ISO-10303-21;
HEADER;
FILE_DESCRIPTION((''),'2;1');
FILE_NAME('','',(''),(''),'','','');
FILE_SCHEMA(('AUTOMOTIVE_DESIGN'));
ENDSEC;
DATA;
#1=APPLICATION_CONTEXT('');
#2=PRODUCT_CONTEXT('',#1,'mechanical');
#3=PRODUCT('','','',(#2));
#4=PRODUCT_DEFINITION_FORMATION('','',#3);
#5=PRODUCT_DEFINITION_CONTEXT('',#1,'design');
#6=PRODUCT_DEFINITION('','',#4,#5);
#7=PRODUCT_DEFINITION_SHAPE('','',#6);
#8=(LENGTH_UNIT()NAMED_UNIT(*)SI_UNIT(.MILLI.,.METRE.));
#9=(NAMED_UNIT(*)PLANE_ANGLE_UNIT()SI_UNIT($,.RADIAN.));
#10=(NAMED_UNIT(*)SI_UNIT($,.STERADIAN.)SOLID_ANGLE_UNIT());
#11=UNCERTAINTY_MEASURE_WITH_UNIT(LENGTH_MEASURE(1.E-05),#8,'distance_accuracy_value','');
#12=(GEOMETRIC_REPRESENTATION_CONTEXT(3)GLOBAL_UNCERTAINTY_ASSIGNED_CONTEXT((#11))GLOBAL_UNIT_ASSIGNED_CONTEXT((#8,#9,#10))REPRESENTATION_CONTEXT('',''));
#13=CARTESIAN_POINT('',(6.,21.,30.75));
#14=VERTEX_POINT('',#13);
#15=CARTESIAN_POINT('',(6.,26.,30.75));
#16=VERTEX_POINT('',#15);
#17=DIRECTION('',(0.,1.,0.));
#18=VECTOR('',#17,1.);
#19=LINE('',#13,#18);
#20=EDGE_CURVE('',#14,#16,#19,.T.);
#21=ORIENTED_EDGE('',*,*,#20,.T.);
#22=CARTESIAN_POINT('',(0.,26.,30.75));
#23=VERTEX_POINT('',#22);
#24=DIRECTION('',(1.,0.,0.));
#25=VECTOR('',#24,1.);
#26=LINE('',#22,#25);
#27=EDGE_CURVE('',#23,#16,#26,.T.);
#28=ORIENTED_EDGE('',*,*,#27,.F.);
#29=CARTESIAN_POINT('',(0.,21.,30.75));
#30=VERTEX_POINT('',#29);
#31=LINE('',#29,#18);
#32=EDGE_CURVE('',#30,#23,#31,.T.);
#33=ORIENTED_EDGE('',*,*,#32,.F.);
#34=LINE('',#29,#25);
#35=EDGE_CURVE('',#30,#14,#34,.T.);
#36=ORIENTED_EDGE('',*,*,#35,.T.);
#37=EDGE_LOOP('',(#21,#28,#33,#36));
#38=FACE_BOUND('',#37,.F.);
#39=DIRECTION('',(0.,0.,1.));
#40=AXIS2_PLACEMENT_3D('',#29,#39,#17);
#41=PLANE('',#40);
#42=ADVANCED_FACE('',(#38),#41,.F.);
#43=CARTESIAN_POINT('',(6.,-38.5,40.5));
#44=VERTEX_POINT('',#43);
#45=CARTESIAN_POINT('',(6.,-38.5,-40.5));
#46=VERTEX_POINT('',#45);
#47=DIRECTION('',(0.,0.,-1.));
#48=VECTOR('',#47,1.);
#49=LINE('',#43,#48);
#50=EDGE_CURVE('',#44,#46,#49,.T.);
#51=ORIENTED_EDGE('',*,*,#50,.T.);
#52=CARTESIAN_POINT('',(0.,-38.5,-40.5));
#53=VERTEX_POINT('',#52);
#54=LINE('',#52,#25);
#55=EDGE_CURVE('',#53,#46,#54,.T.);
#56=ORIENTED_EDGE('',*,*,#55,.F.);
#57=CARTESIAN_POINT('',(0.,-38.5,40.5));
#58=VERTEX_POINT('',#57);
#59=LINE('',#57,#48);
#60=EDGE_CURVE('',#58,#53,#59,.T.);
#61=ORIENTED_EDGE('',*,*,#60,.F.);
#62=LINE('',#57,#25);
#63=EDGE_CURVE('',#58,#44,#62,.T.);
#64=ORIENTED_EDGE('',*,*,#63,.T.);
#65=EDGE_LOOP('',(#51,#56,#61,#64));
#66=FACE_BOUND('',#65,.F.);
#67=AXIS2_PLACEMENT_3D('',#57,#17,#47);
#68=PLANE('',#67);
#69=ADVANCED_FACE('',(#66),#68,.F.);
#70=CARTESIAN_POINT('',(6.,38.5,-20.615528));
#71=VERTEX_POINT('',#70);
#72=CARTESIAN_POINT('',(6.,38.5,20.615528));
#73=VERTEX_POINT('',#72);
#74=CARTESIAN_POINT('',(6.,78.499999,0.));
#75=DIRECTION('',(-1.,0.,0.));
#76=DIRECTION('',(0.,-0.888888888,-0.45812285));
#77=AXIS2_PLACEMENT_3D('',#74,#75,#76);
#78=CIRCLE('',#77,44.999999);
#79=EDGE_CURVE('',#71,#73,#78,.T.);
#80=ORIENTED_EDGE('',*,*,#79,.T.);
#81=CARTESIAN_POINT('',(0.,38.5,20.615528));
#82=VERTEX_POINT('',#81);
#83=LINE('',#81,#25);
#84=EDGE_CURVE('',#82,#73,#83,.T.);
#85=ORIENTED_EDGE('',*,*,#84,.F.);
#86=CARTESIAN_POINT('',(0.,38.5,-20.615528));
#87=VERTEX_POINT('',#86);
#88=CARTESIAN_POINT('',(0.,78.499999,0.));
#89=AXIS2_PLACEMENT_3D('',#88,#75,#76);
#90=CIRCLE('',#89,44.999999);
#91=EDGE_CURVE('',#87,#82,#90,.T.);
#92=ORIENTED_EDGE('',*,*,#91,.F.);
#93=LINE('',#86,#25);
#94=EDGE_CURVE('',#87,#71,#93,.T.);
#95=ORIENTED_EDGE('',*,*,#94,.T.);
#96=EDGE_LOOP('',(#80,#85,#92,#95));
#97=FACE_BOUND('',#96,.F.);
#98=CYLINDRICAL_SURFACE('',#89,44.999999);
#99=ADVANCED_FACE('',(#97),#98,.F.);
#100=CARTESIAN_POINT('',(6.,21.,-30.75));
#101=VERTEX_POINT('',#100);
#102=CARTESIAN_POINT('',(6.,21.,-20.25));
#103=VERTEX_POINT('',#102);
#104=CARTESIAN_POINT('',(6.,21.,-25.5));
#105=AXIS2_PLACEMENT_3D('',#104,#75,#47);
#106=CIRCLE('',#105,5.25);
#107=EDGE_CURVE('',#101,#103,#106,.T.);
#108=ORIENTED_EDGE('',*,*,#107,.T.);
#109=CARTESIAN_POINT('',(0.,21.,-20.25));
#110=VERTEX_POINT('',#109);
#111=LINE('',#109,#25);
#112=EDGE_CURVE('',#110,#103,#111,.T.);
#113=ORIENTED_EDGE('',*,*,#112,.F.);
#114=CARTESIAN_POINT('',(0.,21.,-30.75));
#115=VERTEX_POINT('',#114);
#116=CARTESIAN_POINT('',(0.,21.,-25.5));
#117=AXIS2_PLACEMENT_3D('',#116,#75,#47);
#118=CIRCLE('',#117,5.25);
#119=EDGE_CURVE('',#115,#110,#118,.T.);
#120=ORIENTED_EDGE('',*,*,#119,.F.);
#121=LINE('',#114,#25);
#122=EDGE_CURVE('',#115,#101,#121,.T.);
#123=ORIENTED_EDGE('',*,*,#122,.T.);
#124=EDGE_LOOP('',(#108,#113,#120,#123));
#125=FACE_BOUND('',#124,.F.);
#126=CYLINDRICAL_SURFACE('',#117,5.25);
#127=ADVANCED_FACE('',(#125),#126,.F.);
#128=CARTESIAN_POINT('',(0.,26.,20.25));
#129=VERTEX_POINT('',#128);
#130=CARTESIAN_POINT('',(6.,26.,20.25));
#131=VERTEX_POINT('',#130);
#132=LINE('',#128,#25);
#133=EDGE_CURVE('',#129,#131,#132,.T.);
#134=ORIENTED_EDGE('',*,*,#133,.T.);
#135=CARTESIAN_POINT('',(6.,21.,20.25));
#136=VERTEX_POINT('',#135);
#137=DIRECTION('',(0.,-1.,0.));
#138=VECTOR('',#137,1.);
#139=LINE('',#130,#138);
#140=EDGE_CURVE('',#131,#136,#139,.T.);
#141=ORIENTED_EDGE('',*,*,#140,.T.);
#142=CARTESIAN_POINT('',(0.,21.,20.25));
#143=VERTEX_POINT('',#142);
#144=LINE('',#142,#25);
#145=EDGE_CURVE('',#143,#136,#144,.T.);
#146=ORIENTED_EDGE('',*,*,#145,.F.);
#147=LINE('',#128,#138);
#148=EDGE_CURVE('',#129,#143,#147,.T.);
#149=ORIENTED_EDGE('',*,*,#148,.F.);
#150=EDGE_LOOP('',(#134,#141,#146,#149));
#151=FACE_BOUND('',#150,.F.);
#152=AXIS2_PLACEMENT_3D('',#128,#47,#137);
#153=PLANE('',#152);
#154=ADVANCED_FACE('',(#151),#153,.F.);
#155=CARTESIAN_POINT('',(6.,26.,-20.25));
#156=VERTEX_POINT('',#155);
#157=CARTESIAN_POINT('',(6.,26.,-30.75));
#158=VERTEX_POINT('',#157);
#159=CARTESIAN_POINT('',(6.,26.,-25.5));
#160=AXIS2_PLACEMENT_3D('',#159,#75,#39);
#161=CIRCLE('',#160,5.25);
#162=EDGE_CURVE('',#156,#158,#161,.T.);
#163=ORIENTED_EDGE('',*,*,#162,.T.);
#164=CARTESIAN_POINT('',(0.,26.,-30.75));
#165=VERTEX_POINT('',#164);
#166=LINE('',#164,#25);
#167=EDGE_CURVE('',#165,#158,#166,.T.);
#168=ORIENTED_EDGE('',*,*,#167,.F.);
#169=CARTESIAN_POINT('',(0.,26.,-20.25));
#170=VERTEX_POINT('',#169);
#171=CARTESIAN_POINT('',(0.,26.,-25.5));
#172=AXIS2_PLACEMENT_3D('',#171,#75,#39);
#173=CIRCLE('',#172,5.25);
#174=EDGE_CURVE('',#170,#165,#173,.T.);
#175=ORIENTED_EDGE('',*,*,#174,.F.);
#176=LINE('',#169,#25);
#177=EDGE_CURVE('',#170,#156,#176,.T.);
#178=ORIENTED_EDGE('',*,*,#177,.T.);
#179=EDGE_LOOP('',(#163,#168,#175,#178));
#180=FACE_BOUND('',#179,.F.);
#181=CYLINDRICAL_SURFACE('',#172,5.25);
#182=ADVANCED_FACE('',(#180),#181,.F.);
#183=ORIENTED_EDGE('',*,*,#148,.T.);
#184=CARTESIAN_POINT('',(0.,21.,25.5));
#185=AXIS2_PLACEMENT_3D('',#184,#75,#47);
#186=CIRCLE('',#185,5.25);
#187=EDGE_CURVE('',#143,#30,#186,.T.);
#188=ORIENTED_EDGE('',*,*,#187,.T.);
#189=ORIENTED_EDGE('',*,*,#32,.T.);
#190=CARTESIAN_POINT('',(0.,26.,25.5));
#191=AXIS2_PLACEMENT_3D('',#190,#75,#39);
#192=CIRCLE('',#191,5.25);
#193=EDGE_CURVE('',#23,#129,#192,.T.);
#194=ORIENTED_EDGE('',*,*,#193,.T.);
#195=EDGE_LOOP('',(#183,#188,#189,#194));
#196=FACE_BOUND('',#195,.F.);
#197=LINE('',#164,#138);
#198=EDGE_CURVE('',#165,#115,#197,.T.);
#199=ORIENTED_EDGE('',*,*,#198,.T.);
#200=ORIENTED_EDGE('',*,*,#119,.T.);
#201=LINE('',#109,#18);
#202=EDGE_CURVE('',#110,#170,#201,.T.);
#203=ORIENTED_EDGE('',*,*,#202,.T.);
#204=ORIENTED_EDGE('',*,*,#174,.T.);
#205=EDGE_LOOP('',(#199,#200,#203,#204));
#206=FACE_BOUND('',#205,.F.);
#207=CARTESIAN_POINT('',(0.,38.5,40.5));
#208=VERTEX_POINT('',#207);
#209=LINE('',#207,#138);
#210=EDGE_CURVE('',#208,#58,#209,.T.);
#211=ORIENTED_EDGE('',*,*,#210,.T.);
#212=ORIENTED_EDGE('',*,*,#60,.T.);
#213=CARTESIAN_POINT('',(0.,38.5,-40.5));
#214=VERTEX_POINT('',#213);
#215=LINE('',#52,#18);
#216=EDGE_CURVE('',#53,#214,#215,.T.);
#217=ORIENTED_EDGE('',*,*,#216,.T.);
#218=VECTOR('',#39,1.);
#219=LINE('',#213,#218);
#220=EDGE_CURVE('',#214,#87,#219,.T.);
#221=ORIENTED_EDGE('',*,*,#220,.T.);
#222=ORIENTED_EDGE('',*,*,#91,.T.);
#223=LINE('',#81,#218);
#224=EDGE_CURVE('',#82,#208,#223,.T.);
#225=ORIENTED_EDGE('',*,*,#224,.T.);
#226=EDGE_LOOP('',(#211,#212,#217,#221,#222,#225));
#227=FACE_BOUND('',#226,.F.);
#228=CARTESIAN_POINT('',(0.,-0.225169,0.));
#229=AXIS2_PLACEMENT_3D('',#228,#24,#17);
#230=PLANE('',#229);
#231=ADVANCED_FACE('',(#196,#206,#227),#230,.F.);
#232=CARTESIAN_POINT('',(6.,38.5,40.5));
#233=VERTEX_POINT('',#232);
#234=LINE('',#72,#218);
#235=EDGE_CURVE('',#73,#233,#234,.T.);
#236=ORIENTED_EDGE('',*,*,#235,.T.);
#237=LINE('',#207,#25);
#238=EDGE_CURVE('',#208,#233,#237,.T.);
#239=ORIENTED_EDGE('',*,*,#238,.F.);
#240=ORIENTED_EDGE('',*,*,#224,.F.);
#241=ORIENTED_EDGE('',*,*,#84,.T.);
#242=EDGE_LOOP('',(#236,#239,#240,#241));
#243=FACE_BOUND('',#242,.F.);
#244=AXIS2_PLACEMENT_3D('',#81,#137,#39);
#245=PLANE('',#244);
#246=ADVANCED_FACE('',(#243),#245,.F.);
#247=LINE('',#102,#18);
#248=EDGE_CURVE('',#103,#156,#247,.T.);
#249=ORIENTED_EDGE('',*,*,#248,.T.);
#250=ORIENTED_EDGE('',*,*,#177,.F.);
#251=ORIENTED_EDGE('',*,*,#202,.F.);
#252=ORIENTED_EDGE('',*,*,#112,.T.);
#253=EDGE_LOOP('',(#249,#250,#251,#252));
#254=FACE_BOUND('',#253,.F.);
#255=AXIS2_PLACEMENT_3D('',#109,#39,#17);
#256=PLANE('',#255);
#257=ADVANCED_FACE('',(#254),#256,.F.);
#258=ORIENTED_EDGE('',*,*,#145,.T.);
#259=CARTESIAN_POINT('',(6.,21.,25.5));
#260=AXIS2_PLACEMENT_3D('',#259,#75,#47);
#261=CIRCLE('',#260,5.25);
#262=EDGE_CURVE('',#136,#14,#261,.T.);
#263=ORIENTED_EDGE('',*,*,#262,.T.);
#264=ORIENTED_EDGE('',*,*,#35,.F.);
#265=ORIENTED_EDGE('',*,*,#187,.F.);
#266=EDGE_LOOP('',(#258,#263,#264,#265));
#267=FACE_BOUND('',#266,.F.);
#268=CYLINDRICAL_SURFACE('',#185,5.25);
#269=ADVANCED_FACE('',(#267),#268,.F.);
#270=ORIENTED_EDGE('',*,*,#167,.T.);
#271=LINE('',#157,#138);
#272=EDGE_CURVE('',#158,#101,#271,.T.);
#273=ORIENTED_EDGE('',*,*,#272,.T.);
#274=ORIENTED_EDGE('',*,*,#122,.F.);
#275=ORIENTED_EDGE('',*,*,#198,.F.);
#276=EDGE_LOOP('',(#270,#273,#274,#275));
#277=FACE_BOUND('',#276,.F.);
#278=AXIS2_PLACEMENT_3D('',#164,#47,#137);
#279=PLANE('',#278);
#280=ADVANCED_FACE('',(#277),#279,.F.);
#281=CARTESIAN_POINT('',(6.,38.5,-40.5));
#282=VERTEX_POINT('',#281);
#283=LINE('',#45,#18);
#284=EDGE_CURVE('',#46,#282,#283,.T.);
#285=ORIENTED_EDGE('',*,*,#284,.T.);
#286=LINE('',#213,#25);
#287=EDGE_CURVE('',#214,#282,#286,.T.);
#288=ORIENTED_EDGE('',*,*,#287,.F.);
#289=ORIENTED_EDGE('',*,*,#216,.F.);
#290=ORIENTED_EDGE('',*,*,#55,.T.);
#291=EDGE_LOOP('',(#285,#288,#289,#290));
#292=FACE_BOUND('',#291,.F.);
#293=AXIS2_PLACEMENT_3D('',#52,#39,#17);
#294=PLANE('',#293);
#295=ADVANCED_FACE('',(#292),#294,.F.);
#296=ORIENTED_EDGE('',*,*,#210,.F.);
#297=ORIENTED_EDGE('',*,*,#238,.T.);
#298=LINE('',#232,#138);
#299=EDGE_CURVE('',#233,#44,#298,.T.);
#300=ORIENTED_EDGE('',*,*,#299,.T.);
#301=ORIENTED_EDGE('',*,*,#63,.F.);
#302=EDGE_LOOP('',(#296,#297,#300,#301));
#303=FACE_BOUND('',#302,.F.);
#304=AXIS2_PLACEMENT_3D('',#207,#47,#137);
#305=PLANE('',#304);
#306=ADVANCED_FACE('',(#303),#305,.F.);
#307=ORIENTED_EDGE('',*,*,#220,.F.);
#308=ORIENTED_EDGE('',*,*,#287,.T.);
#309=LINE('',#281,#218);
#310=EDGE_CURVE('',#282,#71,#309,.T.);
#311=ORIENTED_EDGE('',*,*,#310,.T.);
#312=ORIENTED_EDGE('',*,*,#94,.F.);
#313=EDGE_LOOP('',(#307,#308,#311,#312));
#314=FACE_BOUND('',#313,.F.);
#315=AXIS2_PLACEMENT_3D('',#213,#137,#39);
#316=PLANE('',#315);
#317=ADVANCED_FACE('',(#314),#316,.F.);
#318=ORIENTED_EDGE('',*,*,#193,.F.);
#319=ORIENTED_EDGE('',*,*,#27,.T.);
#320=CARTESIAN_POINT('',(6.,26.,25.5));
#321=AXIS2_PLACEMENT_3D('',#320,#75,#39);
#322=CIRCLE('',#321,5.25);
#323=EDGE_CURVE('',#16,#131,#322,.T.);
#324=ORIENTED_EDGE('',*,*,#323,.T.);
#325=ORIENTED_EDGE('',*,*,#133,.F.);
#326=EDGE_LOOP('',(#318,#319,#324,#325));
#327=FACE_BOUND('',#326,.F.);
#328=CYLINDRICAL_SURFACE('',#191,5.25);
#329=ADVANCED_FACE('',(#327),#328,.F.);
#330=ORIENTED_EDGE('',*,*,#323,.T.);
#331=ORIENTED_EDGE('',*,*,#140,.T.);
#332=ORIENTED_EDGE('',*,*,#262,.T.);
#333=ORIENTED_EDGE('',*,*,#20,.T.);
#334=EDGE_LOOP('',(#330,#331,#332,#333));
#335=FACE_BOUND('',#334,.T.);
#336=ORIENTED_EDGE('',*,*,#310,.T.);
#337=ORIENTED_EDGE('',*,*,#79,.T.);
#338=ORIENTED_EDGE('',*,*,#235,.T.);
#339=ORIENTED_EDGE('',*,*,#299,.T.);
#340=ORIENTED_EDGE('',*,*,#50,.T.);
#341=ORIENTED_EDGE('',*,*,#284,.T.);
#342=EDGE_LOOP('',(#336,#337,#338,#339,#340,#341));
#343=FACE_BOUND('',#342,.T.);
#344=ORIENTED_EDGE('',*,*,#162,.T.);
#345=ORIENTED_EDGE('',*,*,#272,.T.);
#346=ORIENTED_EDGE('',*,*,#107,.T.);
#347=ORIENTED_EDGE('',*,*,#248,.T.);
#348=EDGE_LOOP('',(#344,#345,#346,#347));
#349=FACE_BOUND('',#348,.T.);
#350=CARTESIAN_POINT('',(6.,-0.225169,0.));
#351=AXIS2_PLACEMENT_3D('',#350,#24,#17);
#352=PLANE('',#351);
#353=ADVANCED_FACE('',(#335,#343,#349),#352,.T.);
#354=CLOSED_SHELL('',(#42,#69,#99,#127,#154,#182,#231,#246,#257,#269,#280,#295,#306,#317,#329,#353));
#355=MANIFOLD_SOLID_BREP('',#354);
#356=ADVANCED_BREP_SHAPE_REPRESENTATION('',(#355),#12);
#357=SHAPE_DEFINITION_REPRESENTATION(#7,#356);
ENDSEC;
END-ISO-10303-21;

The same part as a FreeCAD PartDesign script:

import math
import FreeCAD as App
import Part
import Sketcher
from FreeCAD import Vector

doc = App.newDocument("Part")
body = doc.addObject("PartDesign::Body", "Body")

# Sketch on YZ plane
sketch1 = body.newObject("Sketcher::SketchObject", "Sketch")
sketch1.AttachmentSupport = (doc.getObject("YZ_Plane"), [""])
sketch1.MapMode = "FlatFace"
sketch1.addGeometry(Part.LineSegment(Vector(38.5, 20.615528, 0), Vector(38.5, 40.5, 0)), False)
sketch1.addGeometry(Part.LineSegment(Vector(38.5, 40.5, 0), Vector(-38.5, 40.5, 0)), False)
sketch1.addGeometry(Part.LineSegment(Vector(-38.5, 40.5, 0), Vector(-38.5, -40.5, 0)), False)
sketch1.addGeometry(Part.LineSegment(Vector(-38.5, -40.5, 0), Vector(38.5, -40.5, 0)), False)
sketch1.addGeometry(Part.LineSegment(Vector(38.5, -40.5, 0), Vector(38.5, -20.615528, 0)), False)
sketch1.addGeometry(Part.ArcOfCircle(Part.Circle(Vector(78.499999, 0, 0), Vector(0, 0, 1), 44.999999), math.radians(152.733955), math.radians(207.266045)), False)
sketch1.addGeometry(Part.LineSegment(Vector(26, -30.75, 0), Vector(21, -30.75, 0)), False)
sketch1.addGeometry(Part.ArcOfCircle(Part.Circle(Vector(21, -25.5, 0), Vector(0, 0, 1), 5.25), math.radians(90), math.radians(270)), False)
sketch1.addGeometry(Part.LineSegment(Vector(21, -20.25, 0), Vector(26, -20.25, 0)), False)
sketch1.addGeometry(Part.ArcOfCircle(Part.Circle(Vector(26, -25.5, 0), Vector(0, 0, 1), 5.25), math.radians(-90), math.radians(90)), False)
sketch1.addGeometry(Part.LineSegment(Vector(26, 20.25, 0), Vector(21, 20.25, 0)), False)
sketch1.addGeometry(Part.ArcOfCircle(Part.Circle(Vector(21, 25.5, 0), Vector(0, 0, 1), 5.25), math.radians(90), math.radians(270)), False)
sketch1.addGeometry(Part.LineSegment(Vector(21, 30.75, 0), Vector(26, 30.75, 0)), False)
sketch1.addGeometry(Part.ArcOfCircle(Part.Circle(Vector(26, 25.5, 0), Vector(0, 0, 1), 5.25), math.radians(-90), math.radians(90)), False)
sketch1.addConstraint(Sketcher.Constraint("Coincident", 0, 2, 1, 1))
sketch1.addConstraint(Sketcher.Constraint("Coincident", 1, 2, 2, 1))
sketch1.addConstraint(Sketcher.Constraint("Coincident", 2, 2, 3, 1))
sketch1.addConstraint(Sketcher.Constraint("Coincident", 3, 2, 4, 1))
sketch1.addConstraint(Sketcher.Constraint("Coincident", 4, 2, 5, 2))
sketch1.addConstraint(Sketcher.Constraint("Coincident", 5, 1, 0, 1))
sketch1.addConstraint(Sketcher.Constraint("Tangent", 6, 2, 7, 2))
sketch1.addConstraint(Sketcher.Constraint("Tangent", 7, 1, 8, 1))
sketch1.addConstraint(Sketcher.Constraint("Tangent", 8, 2, 9, 2))
sketch1.addConstraint(Sketcher.Constraint("Tangent", 9, 1, 6, 1))
sketch1.addConstraint(Sketcher.Constraint("Tangent", 10, 2, 11, 2))
sketch1.addConstraint(Sketcher.Constraint("Tangent", 11, 1, 12, 1))
sketch1.addConstraint(Sketcher.Constraint("Tangent", 12, 2, 13, 2))
sketch1.addConstraint(Sketcher.Constraint("Tangent", 13, 1, 10, 1))
sketch1.addConstraint(Sketcher.Constraint("Vertical", 0))
sketch1.addConstraint(Sketcher.Constraint("Horizontal", 1))
sketch1.addConstraint(Sketcher.Constraint("Vertical", 2))
sketch1.addConstraint(Sketcher.Constraint("Horizontal", 3))
sketch1.addConstraint(Sketcher.Constraint("Vertical", 4))
sketch1.addConstraint(Sketcher.Constraint("Horizontal", 6))
sketch1.addConstraint(Sketcher.Constraint("Horizontal", 8))
sketch1.addConstraint(Sketcher.Constraint("Horizontal", 10))
sketch1.addConstraint(Sketcher.Constraint("Horizontal", 12))
sketch1.addConstraint(Sketcher.Constraint("Equal", 9, 11))
sketch1.addConstraint(Sketcher.Constraint("Symmetric", 0, 2, 2, 2, -1, 1))
sketch1.addConstraint(Sketcher.Constraint("Symmetric", 7, 3, 11, 3, -1))
sketch1.addConstraint(Sketcher.Constraint("Symmetric", 4, 2, 5, 1, -1))
sketch1.addConstraint(Sketcher.Constraint("Vertical", 9, 3, 13, 3))
sketch1.addConstraint(Sketcher.Constraint("Radius", 5, 44.999999))
sketch1.addConstraint(Sketcher.Constraint("DistanceX", 1, 2, 1, 1, 77.0))
sketch1.addConstraint(Sketcher.Constraint("DistanceX", 6, 2, 6, 1, 5.0))
sketch1.addConstraint(Sketcher.Constraint("DistanceY", 2, 2, 2, 1, 81.0))
sketch1.addConstraint(Sketcher.Constraint("Radius", 7, 5.25))
sketch1.addConstraint(Sketcher.Constraint("DistanceX", -1, 1, 7, 3, 21.0))
sketch1.addConstraint(Sketcher.Constraint("DistanceY", 7, 3, 11, 3, 51.0))
sketch1.addConstraint(Sketcher.Constraint("DistanceX", 0, 2, 5, 3, 39.999999))
pad1 = body.newObject("PartDesign::Pad", "Pad")
pad1.Profile = sketch1
pad1.Length = 6

doc.recompute()
